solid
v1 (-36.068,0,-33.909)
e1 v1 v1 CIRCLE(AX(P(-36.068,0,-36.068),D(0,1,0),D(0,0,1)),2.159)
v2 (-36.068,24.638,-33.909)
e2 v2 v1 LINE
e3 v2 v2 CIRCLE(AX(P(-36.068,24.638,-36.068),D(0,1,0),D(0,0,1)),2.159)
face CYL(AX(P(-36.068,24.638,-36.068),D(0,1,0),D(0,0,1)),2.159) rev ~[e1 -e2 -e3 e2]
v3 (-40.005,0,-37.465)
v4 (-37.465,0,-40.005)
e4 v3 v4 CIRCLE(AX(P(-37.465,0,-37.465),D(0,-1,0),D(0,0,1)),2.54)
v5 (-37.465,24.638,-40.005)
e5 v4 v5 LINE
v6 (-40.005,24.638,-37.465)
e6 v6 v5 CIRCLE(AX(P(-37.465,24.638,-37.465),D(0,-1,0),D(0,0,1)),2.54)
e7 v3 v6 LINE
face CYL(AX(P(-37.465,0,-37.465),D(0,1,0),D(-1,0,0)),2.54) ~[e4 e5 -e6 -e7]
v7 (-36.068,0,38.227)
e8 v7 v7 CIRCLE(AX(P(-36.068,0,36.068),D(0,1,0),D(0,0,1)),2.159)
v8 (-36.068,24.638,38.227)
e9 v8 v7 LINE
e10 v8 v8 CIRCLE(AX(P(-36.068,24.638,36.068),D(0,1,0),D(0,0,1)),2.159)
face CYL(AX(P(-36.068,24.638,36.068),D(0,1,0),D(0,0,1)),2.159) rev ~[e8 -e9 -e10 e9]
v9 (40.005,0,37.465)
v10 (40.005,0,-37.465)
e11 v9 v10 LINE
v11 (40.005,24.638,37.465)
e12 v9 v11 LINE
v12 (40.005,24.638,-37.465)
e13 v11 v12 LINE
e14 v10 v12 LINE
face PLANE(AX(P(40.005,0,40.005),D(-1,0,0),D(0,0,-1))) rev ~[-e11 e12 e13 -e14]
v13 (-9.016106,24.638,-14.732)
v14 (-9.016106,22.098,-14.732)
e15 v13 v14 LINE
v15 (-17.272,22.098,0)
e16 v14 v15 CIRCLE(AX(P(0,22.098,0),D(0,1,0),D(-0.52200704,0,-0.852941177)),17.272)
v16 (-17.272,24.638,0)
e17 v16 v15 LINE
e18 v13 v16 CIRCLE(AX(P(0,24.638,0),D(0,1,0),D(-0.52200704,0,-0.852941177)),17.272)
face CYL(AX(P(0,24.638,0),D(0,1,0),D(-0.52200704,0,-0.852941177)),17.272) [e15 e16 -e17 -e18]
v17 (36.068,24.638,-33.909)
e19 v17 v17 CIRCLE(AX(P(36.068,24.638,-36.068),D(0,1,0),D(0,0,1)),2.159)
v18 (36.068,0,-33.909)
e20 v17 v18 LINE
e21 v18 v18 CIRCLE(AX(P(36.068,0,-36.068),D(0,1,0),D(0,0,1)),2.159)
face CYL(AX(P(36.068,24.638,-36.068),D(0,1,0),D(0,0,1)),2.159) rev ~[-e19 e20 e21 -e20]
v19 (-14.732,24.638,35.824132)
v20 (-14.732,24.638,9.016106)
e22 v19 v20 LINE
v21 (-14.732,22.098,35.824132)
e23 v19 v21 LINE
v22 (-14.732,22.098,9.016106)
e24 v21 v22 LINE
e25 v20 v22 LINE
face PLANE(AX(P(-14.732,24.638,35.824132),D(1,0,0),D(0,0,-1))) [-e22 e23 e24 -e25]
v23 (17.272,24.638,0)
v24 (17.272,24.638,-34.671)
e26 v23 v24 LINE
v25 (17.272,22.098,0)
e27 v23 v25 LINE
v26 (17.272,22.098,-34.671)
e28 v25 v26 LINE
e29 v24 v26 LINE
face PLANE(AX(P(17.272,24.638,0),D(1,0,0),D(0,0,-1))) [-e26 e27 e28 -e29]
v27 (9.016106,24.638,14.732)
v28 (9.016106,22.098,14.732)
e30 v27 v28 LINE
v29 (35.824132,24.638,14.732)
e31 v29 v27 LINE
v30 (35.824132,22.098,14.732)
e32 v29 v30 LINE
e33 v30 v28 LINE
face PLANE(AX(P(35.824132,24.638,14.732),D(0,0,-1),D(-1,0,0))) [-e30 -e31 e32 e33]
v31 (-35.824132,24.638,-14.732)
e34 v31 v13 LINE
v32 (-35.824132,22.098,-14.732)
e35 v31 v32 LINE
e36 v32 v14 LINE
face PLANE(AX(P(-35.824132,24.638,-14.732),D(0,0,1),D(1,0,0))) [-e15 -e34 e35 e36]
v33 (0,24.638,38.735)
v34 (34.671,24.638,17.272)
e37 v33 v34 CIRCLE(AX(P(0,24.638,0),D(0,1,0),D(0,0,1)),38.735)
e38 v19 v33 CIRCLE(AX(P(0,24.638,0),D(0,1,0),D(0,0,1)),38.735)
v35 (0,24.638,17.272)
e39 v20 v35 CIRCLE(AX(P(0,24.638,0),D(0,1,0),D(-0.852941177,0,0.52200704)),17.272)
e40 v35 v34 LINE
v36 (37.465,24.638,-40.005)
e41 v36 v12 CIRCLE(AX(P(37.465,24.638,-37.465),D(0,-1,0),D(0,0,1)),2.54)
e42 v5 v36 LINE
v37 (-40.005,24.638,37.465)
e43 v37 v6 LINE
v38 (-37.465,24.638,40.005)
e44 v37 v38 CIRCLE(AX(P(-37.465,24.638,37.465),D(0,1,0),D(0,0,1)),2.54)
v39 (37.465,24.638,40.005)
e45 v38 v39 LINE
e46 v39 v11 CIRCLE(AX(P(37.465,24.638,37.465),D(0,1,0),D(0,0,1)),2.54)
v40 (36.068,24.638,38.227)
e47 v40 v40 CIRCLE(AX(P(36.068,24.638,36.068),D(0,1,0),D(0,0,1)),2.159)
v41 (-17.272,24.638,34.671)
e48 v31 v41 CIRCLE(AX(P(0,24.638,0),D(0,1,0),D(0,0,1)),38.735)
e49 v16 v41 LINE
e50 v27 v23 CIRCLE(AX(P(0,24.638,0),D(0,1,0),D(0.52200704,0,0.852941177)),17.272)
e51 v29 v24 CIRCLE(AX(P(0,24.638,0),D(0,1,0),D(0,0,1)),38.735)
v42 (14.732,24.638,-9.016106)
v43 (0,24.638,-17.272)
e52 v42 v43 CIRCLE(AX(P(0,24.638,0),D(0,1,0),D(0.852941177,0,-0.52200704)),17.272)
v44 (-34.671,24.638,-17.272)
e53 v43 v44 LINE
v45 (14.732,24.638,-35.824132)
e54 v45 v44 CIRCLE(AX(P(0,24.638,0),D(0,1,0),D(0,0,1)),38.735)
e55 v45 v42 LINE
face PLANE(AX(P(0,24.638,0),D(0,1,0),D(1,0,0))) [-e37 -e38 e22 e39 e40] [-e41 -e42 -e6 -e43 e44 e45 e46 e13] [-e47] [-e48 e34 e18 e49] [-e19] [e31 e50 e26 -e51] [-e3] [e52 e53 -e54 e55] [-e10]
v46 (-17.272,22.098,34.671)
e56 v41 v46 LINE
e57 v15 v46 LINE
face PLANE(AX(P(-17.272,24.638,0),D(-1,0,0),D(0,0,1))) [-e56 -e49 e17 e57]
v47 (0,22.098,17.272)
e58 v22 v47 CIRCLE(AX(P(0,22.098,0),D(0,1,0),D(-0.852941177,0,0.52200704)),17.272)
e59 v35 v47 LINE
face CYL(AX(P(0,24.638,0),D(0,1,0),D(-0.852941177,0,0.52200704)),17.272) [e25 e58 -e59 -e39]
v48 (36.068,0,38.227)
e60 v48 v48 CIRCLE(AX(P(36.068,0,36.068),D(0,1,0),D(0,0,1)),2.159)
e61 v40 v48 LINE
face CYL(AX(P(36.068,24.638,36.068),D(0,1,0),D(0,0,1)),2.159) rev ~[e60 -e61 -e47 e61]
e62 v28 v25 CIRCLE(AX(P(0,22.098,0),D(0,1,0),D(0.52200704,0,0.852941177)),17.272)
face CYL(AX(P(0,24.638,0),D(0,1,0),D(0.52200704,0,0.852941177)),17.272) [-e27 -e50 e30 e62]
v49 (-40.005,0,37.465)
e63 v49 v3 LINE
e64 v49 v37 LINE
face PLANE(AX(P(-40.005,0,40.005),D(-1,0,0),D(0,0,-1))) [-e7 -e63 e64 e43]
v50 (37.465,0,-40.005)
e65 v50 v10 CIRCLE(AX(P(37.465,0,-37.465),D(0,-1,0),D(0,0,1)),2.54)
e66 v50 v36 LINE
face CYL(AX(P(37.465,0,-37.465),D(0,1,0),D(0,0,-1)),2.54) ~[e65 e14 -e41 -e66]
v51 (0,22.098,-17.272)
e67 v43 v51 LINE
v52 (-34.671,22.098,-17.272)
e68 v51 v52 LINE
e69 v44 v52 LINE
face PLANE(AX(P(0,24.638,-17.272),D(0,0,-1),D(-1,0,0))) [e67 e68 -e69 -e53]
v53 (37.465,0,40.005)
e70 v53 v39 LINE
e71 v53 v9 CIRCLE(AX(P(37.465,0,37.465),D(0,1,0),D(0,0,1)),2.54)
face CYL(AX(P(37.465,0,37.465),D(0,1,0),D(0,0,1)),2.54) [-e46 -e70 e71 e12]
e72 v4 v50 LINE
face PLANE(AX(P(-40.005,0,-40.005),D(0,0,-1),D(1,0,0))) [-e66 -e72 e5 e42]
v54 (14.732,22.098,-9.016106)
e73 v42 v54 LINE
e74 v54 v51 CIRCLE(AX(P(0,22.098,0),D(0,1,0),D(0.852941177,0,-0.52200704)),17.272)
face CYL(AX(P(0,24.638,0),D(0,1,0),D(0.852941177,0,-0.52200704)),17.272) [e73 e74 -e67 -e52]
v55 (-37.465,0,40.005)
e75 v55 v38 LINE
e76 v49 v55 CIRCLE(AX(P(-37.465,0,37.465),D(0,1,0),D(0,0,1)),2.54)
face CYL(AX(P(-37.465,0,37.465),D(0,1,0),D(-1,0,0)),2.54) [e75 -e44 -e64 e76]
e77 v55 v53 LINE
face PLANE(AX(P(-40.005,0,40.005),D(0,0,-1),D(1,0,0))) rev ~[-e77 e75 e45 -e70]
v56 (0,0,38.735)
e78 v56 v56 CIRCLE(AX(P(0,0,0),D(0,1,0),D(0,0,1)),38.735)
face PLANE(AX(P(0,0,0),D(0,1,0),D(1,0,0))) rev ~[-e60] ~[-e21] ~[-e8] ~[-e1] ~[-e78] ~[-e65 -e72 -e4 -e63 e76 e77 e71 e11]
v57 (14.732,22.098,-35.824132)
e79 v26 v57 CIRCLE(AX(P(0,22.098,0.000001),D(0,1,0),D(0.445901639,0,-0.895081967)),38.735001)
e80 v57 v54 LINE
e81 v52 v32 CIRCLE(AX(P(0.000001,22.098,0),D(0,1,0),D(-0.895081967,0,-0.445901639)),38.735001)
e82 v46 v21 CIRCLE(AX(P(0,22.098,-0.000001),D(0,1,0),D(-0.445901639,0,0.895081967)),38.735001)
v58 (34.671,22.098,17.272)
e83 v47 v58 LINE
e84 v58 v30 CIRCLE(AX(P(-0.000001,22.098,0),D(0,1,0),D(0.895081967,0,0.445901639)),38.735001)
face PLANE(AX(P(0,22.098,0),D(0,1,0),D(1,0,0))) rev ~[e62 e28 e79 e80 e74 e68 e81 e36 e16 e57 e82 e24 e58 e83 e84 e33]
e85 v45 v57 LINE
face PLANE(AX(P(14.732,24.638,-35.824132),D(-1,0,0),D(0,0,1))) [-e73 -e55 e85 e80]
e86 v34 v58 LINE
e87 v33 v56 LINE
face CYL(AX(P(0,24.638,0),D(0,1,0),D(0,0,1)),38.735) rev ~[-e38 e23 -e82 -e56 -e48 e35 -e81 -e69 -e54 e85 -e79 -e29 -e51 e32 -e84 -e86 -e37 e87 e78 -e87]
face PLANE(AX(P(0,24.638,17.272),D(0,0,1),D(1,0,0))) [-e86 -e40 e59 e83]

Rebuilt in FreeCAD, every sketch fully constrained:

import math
import FreeCAD as App
import Part
import Sketcher
from FreeCAD import Vector
Q = App.Units.Quantity


def edges_at(feature, points):
    """Names of the edges that pass closest to the given points."""
    edges = feature.Shape.Edges
    near = lambda p: min(range(len(edges)), key=lambda i: edges[i].distToShape(Part.Vertex(*p))[0])
    return sorted({f"Edge{near(p) + 1}" for p in points})

doc = App.newDocument("Part")
body = doc.addObject("PartDesign::Body", "Body")

# Sketch on XZ plane
sketch1 = doc.addObject("Sketcher::SketchObject", "Sketch")
body.addObject(sketch1)
sketch1.AttachmentSupport = (doc.XZ_Plane, [""])
sketch1.MapMode = "FlatFace"
sketch1.addGeometry(Part.LineSegment(Vector(-40, -40, 0), Vector(-40, 40, 0)), False)
sketch1.addGeometry(Part.LineSegment(Vector(-40, 40, 0), Vector(40, 40, 0)), False)
sketch1.addGeometry(Part.LineSegment(Vector(40, 40, 0), Vector(40, -40, 0)), False)
sketch1.addGeometry(Part.LineSegment(Vector(40, -40, 0), Vector(-40, -40, 0)), False)
sketch1.addConstraint(Sketcher.Constraint("Coincident", 0, 2, 1, 1))
sketch1.addConstraint(Sketcher.Constraint("Coincident", 1, 2, 2, 1))
sketch1.addConstraint(Sketcher.Constraint("Coincident", 2, 2, 3, 1))
sketch1.addConstraint(Sketcher.Constraint("Coincident", 3, 2, 0, 1))
sketch1.addConstraint(Sketcher.Constraint("Vertical", 0))
sketch1.addConstraint(Sketcher.Constraint("Horizontal", 1))
sketch1.addConstraint(Sketcher.Constraint("Vertical", 2))
sketch1.addConstraint(Sketcher.Constraint("Horizontal", 3))
sketch1.addConstraint(Sketcher.Constraint("Symmetric", 0, 2, 2, 2, -1, 1))
sketch1.addConstraint(Sketcher.Constraint("Equal", 3, 0))
sketch1.addConstraint(Sketcher.Constraint("DistanceX", 1, 1, 1, 2, Q("3.15 in")))
pad1 = doc.addObject("PartDesign::Pad", "Pad")
body.addObject(pad1)
pad1.Profile = sketch1
pad1.Length = Q("0.97 in")
pad1.Reversed = True

# Sketch on XZ plane
sketch2 = doc.addObject("Sketcher::SketchObject", "Sketch001")
body.addObject(sketch2)
sketch2.AttachmentSupport = (doc.XZ_Plane, [""])
sketch2.MapMode = "FlatFace"
sketch2.AttachmentOffset = App.Placement(Vector(0, 0, -0.97 * 25.4), App.Rotation())
sketch2.addGeometry(Part.Circle(Vector(0, 0, 0), Vector(0, 0, 1), 38.7), False)
sketch2.addGeometry(Part.Circle(Vector(-36.1, -36.1, 0), Vector(0, 0, 1), 2.2), False)
sketch2.addGeometry(Part.Circle(Vector(36.1, -36.1, 0), Vector(0, 0, 1), 2.2), False)
sketch2.addGeometry(Part.Circle(Vector(36.1, 36.1, 0), Vector(0, 0, 1), 2.2), False)
sketch2.addGeometry(Part.Circle(Vector(-36.1, 36.1, 0), Vector(0, 0, 1), 2.2), False)
sketch2.addConstraint(Sketcher.Constraint("Coincident", 0, 3, -1, 1))
sketch2.addConstraint(Sketcher.Constraint("Equal", 1, 2))
sketch2.addConstraint(Sketcher.Constraint("Equal", 2, 3))
sketch2.addConstraint(Sketcher.Constraint("Equal", 3, 4))
sketch2.addConstraint(Sketcher.Constraint("Symmetric", 1, 3, 3, 3, -1, 1))
sketch2.addConstraint(Sketcher.Constraint("Symmetric", 2, 3, 4, 3, -1, 1))
sketch2.addConstraint(Sketcher.Constraint("Symmetric", 1, 3, 2, 3, -2))
sketch2.addConstraint(Sketcher.Constraint("Diameter", 0, Q("3.05 in")))
sketch2.addConstraint(Sketcher.Constraint("Diameter", 1, Q("0.17 in")))
sketch2.addConstraint(Sketcher.Constraint("DistanceX", 1, 3, -1, 1, Q("1.42 in")))
sketch2.addConstraint(Sketcher.Constraint("DistanceY", 1, 3, -1, 1, Q("1.42 in")))
pocket1 = doc.addObject("PartDesign::Pocket", "Pocket")
body.addObject(pocket1)
pocket1.Profile = sketch2
pocket1.Length = Q("0.97 in")
pocket1.Reversed = True
doc.recompute()

fillet = doc.addObject("PartDesign::Fillet", "Fillet")
body.addObject(fillet)
fillet.Base = (pocket1, edges_at(pocket1, [
    (40.005, 12.319, 40.005),
    (-40.005, 12.319, 40.005),
    (-40.005, 12.319, -40.005),
    (40.005, 12.319, -40.005),
]))
fillet.Radius = Q("0.1 in")

# Sketch on XZ plane
sketch3 = doc.addObject("Sketcher::SketchObject", "Sketch002")
body.addObject(sketch3)
sketch3.AttachmentSupport = (doc.XZ_Plane, [""])
sketch3.MapMode = "FlatFace"
sketch3.AttachmentOffset = App.Placement(Vector(0, 0, -0.97 * 25.4), App.Rotation())
sketch3.addGeometry(Part.LineSegment(Vector(17.3, 0, 0), Vector(17.3, -34.7, 0)), False)
sketch3.addGeometry(Part.ArcOfCircle(Part.Circle(Vector(0, 0, 0), Vector(0, 0, 1), 38.7), math.radians(-67.65), math.radians(-63.52)), False)
sketch3.addGeometry(Part.LineSegment(Vector(14.7, -35.8, 0), Vector(14.7, -9, 0)), False)
sketch3.addGeometry(Part.ArcOfCircle(Part.Circle(Vector(0, 0, 0), Vector(0, 0, 1), 17.3), math.radians(-90), math.radians(-31)), False)
sketch3.addGeometry(Part.LineSegment(Vector(0, -17.3, 0), Vector(-34.7, -17.3, 0)), False)
sketch3.addGeometry(Part.ArcOfCircle(Part.Circle(Vector(0, 0, 0), Vector(0, 0, 1), 38.7), math.radians(-157.65), math.radians(-153.52)), False)
sketch3.addGeometry(Part.LineSegment(Vector(-35.8, -14.7, 0), Vector(-9, -14.7, 0)), False)
sketch3.addGeometry(Part.ArcOfCircle(Part.Circle(Vector(0, 0, 0), Vector(0, 0, 1), 17.3), math.radians(180), math.radians(239)), False)
sketch3.addGeometry(Part.LineSegment(Vector(-17.3, 0, 0), Vector(-17.3, 34.7, 0)), False)
sketch3.addGeometry(Part.ArcOfCircle(Part.Circle(Vector(0, 0, 0), Vector(0, 0, 1), 38.7), math.radians(112.35), math.radians(116.48)), False)
sketch3.addGeometry(Part.LineSegment(Vector(-14.7, 35.8, 0), Vector(-14.7, 9, 0)), False)
sketch3.addGeometry(Part.ArcOfCircle(Part.Circle(Vector(0, 0, 0), Vector(0, 0, 1), 17.3), math.radians(90), math.radians(149)), False)
sketch3.addGeometry(Part.LineSegment(Vector(0, 17.3, 0), Vector(34.7, 17.3, 0)), False)
sketch3.addGeometry(Part.ArcOfCircle(Part.Circle(Vector(0, 0, 0), Vector(0, 0, 1), 38.7), math.radians(22.35), math.radians(26.48)), False)
sketch3.addGeometry(Part.LineSegment(Vector(35.8, 14.7, 0), Vector(9, 14.7, 0)), False)
sketch3.addGeometry(Part.ArcOfCircle(Part.Circle(Vector(0, 0, 0), Vector(0, 0, 1), 17.3), math.radians(0), math.radians(59)), False)
sketch3.addConstraint(Sketcher.Constraint("Coincident", 0, 2, 1, 2))
sketch3.addConstraint(Sketcher.Constraint("Coincident", 1, 1, 2, 1))
sketch3.addConstraint(Sketcher.Constraint("Coincident", 2, 2, 3, 2))
sketch3.addConstraint(Sketcher.Constraint("Tangent", 3, 1, 4, 1))
sketch3.addConstraint(Sketcher.Constraint("Coincident", 4, 2, 5, 2))
sketch3.addConstraint(Sketcher.Constraint("Coincident", 5, 1, 6, 1))
sketch3.addConstraint(Sketcher.Constraint("Coincident", 6, 2, 7, 2))
sketch3.addConstraint(Sketcher.Constraint("Tangent", 7, 1, 8, 1))
sketch3.addConstraint(Sketcher.Constraint("Coincident", 8, 2, 9, 2))
sketch3.addConstraint(Sketcher.Constraint("Coincident", 9, 1, 10, 1))
sketch3.addConstraint(Sketcher.Constraint("Coincident", 10, 2, 11, 2))
sketch3.addConstraint(Sketcher.Constraint("Tangent", 11, 1, 12, 1))
sketch3.addConstraint(Sketcher.Constraint("Coincident", 12, 2, 13, 2))
sketch3.addConstraint(Sketcher.Constraint("Coincident", 13, 1, 14, 1))
sketch3.addConstraint(Sketcher.Constraint("Coincident", 14, 2, 15, 2))
sketch3.addConstraint(Sketcher.Constraint("Tangent", 15, 1, 0, 1))
sketch3.addConstraint(Sketcher.Constraint("Vertical", 0))
sketch3.addConstraint(Sketcher.Constraint("Vertical", 2))
sketch3.addConstraint(Sketcher.Constraint("Horizontal", 4))
sketch3.addConstraint(Sketcher.Constraint("Horizontal", 6))
sketch3.addConstraint(Sketcher.Constraint("Vertical", 8))
sketch3.addConstraint(Sketcher.Constraint("Vertical", 10))
sketch3.addConstraint(Sketcher.Constraint("Horizontal", 12))
sketch3.addConstraint(Sketcher.Constraint("Horizontal", 14))
sketch3.addConstraint(Sketcher.Constraint("Coincident", 1, 3, -1, 1))
sketch3.addConstraint(Sketcher.Constraint("Coincident", 3, 3, -1, 1))
sketch3.addConstraint(Sketcher.Constraint("Coincident", 5, 3, -1, 1))
sketch3.addConstraint(Sketcher.Constraint("Coincident", 7, 3, -1, 1))
sketch3.addConstraint(Sketcher.Constraint("Coincident", 9, 3, -1, 1))
sketch3.addConstraint(Sketcher.Constraint("Coincident", 11, 3, -1, 1))
sketch3.addConstraint(Sketcher.Constraint("Coincident", 13, 3, -1, 1))
sketch3.addConstraint(Sketcher.Constraint("Coincident", 15, 3, -1, 1))
sketch3.addConstraint(Sketcher.Constraint("Equal", 1, 5))
sketch3.addConstraint(Sketcher.Constraint("Equal", 3, 7))
sketch3.addConstraint(Sketcher.Constraint("Equal", 5, 9))
sketch3.addConstraint(Sketcher.Constraint("Equal", 7, 11))
sketch3.addConstraint(Sketcher.Constraint("Equal", 9, 13))
sketch3.addConstraint(Sketcher.Constraint("Equal", 11, 15))
sketch3.addConstraint(Sketcher.Constraint("Equal", 6, 14))
sketch3.addConstraint(Sketcher.Constraint("Equal", 14, 2))
sketch3.addConstraint(Sketcher.Constraint("Equal", 2, 10))
sketch3.addConstraint(Sketcher.Constraint("Radius", 3, Q("0.68 in")))
sketch3.addConstraint(Sketcher.Constraint("Radius", 1, Q("1.525 in")))
sketch3.addConstraint(Sketcher.Constraint("DistanceX", 1, 1, 0, 2, Q("0.1 in")))
pad2 = doc.addObject("PartDesign::Pad", "Pad001")
body.addObject(pad2)
pad2.Profile = sketch3
pad2.Length = Q("0.1 in")

doc.recompute()
